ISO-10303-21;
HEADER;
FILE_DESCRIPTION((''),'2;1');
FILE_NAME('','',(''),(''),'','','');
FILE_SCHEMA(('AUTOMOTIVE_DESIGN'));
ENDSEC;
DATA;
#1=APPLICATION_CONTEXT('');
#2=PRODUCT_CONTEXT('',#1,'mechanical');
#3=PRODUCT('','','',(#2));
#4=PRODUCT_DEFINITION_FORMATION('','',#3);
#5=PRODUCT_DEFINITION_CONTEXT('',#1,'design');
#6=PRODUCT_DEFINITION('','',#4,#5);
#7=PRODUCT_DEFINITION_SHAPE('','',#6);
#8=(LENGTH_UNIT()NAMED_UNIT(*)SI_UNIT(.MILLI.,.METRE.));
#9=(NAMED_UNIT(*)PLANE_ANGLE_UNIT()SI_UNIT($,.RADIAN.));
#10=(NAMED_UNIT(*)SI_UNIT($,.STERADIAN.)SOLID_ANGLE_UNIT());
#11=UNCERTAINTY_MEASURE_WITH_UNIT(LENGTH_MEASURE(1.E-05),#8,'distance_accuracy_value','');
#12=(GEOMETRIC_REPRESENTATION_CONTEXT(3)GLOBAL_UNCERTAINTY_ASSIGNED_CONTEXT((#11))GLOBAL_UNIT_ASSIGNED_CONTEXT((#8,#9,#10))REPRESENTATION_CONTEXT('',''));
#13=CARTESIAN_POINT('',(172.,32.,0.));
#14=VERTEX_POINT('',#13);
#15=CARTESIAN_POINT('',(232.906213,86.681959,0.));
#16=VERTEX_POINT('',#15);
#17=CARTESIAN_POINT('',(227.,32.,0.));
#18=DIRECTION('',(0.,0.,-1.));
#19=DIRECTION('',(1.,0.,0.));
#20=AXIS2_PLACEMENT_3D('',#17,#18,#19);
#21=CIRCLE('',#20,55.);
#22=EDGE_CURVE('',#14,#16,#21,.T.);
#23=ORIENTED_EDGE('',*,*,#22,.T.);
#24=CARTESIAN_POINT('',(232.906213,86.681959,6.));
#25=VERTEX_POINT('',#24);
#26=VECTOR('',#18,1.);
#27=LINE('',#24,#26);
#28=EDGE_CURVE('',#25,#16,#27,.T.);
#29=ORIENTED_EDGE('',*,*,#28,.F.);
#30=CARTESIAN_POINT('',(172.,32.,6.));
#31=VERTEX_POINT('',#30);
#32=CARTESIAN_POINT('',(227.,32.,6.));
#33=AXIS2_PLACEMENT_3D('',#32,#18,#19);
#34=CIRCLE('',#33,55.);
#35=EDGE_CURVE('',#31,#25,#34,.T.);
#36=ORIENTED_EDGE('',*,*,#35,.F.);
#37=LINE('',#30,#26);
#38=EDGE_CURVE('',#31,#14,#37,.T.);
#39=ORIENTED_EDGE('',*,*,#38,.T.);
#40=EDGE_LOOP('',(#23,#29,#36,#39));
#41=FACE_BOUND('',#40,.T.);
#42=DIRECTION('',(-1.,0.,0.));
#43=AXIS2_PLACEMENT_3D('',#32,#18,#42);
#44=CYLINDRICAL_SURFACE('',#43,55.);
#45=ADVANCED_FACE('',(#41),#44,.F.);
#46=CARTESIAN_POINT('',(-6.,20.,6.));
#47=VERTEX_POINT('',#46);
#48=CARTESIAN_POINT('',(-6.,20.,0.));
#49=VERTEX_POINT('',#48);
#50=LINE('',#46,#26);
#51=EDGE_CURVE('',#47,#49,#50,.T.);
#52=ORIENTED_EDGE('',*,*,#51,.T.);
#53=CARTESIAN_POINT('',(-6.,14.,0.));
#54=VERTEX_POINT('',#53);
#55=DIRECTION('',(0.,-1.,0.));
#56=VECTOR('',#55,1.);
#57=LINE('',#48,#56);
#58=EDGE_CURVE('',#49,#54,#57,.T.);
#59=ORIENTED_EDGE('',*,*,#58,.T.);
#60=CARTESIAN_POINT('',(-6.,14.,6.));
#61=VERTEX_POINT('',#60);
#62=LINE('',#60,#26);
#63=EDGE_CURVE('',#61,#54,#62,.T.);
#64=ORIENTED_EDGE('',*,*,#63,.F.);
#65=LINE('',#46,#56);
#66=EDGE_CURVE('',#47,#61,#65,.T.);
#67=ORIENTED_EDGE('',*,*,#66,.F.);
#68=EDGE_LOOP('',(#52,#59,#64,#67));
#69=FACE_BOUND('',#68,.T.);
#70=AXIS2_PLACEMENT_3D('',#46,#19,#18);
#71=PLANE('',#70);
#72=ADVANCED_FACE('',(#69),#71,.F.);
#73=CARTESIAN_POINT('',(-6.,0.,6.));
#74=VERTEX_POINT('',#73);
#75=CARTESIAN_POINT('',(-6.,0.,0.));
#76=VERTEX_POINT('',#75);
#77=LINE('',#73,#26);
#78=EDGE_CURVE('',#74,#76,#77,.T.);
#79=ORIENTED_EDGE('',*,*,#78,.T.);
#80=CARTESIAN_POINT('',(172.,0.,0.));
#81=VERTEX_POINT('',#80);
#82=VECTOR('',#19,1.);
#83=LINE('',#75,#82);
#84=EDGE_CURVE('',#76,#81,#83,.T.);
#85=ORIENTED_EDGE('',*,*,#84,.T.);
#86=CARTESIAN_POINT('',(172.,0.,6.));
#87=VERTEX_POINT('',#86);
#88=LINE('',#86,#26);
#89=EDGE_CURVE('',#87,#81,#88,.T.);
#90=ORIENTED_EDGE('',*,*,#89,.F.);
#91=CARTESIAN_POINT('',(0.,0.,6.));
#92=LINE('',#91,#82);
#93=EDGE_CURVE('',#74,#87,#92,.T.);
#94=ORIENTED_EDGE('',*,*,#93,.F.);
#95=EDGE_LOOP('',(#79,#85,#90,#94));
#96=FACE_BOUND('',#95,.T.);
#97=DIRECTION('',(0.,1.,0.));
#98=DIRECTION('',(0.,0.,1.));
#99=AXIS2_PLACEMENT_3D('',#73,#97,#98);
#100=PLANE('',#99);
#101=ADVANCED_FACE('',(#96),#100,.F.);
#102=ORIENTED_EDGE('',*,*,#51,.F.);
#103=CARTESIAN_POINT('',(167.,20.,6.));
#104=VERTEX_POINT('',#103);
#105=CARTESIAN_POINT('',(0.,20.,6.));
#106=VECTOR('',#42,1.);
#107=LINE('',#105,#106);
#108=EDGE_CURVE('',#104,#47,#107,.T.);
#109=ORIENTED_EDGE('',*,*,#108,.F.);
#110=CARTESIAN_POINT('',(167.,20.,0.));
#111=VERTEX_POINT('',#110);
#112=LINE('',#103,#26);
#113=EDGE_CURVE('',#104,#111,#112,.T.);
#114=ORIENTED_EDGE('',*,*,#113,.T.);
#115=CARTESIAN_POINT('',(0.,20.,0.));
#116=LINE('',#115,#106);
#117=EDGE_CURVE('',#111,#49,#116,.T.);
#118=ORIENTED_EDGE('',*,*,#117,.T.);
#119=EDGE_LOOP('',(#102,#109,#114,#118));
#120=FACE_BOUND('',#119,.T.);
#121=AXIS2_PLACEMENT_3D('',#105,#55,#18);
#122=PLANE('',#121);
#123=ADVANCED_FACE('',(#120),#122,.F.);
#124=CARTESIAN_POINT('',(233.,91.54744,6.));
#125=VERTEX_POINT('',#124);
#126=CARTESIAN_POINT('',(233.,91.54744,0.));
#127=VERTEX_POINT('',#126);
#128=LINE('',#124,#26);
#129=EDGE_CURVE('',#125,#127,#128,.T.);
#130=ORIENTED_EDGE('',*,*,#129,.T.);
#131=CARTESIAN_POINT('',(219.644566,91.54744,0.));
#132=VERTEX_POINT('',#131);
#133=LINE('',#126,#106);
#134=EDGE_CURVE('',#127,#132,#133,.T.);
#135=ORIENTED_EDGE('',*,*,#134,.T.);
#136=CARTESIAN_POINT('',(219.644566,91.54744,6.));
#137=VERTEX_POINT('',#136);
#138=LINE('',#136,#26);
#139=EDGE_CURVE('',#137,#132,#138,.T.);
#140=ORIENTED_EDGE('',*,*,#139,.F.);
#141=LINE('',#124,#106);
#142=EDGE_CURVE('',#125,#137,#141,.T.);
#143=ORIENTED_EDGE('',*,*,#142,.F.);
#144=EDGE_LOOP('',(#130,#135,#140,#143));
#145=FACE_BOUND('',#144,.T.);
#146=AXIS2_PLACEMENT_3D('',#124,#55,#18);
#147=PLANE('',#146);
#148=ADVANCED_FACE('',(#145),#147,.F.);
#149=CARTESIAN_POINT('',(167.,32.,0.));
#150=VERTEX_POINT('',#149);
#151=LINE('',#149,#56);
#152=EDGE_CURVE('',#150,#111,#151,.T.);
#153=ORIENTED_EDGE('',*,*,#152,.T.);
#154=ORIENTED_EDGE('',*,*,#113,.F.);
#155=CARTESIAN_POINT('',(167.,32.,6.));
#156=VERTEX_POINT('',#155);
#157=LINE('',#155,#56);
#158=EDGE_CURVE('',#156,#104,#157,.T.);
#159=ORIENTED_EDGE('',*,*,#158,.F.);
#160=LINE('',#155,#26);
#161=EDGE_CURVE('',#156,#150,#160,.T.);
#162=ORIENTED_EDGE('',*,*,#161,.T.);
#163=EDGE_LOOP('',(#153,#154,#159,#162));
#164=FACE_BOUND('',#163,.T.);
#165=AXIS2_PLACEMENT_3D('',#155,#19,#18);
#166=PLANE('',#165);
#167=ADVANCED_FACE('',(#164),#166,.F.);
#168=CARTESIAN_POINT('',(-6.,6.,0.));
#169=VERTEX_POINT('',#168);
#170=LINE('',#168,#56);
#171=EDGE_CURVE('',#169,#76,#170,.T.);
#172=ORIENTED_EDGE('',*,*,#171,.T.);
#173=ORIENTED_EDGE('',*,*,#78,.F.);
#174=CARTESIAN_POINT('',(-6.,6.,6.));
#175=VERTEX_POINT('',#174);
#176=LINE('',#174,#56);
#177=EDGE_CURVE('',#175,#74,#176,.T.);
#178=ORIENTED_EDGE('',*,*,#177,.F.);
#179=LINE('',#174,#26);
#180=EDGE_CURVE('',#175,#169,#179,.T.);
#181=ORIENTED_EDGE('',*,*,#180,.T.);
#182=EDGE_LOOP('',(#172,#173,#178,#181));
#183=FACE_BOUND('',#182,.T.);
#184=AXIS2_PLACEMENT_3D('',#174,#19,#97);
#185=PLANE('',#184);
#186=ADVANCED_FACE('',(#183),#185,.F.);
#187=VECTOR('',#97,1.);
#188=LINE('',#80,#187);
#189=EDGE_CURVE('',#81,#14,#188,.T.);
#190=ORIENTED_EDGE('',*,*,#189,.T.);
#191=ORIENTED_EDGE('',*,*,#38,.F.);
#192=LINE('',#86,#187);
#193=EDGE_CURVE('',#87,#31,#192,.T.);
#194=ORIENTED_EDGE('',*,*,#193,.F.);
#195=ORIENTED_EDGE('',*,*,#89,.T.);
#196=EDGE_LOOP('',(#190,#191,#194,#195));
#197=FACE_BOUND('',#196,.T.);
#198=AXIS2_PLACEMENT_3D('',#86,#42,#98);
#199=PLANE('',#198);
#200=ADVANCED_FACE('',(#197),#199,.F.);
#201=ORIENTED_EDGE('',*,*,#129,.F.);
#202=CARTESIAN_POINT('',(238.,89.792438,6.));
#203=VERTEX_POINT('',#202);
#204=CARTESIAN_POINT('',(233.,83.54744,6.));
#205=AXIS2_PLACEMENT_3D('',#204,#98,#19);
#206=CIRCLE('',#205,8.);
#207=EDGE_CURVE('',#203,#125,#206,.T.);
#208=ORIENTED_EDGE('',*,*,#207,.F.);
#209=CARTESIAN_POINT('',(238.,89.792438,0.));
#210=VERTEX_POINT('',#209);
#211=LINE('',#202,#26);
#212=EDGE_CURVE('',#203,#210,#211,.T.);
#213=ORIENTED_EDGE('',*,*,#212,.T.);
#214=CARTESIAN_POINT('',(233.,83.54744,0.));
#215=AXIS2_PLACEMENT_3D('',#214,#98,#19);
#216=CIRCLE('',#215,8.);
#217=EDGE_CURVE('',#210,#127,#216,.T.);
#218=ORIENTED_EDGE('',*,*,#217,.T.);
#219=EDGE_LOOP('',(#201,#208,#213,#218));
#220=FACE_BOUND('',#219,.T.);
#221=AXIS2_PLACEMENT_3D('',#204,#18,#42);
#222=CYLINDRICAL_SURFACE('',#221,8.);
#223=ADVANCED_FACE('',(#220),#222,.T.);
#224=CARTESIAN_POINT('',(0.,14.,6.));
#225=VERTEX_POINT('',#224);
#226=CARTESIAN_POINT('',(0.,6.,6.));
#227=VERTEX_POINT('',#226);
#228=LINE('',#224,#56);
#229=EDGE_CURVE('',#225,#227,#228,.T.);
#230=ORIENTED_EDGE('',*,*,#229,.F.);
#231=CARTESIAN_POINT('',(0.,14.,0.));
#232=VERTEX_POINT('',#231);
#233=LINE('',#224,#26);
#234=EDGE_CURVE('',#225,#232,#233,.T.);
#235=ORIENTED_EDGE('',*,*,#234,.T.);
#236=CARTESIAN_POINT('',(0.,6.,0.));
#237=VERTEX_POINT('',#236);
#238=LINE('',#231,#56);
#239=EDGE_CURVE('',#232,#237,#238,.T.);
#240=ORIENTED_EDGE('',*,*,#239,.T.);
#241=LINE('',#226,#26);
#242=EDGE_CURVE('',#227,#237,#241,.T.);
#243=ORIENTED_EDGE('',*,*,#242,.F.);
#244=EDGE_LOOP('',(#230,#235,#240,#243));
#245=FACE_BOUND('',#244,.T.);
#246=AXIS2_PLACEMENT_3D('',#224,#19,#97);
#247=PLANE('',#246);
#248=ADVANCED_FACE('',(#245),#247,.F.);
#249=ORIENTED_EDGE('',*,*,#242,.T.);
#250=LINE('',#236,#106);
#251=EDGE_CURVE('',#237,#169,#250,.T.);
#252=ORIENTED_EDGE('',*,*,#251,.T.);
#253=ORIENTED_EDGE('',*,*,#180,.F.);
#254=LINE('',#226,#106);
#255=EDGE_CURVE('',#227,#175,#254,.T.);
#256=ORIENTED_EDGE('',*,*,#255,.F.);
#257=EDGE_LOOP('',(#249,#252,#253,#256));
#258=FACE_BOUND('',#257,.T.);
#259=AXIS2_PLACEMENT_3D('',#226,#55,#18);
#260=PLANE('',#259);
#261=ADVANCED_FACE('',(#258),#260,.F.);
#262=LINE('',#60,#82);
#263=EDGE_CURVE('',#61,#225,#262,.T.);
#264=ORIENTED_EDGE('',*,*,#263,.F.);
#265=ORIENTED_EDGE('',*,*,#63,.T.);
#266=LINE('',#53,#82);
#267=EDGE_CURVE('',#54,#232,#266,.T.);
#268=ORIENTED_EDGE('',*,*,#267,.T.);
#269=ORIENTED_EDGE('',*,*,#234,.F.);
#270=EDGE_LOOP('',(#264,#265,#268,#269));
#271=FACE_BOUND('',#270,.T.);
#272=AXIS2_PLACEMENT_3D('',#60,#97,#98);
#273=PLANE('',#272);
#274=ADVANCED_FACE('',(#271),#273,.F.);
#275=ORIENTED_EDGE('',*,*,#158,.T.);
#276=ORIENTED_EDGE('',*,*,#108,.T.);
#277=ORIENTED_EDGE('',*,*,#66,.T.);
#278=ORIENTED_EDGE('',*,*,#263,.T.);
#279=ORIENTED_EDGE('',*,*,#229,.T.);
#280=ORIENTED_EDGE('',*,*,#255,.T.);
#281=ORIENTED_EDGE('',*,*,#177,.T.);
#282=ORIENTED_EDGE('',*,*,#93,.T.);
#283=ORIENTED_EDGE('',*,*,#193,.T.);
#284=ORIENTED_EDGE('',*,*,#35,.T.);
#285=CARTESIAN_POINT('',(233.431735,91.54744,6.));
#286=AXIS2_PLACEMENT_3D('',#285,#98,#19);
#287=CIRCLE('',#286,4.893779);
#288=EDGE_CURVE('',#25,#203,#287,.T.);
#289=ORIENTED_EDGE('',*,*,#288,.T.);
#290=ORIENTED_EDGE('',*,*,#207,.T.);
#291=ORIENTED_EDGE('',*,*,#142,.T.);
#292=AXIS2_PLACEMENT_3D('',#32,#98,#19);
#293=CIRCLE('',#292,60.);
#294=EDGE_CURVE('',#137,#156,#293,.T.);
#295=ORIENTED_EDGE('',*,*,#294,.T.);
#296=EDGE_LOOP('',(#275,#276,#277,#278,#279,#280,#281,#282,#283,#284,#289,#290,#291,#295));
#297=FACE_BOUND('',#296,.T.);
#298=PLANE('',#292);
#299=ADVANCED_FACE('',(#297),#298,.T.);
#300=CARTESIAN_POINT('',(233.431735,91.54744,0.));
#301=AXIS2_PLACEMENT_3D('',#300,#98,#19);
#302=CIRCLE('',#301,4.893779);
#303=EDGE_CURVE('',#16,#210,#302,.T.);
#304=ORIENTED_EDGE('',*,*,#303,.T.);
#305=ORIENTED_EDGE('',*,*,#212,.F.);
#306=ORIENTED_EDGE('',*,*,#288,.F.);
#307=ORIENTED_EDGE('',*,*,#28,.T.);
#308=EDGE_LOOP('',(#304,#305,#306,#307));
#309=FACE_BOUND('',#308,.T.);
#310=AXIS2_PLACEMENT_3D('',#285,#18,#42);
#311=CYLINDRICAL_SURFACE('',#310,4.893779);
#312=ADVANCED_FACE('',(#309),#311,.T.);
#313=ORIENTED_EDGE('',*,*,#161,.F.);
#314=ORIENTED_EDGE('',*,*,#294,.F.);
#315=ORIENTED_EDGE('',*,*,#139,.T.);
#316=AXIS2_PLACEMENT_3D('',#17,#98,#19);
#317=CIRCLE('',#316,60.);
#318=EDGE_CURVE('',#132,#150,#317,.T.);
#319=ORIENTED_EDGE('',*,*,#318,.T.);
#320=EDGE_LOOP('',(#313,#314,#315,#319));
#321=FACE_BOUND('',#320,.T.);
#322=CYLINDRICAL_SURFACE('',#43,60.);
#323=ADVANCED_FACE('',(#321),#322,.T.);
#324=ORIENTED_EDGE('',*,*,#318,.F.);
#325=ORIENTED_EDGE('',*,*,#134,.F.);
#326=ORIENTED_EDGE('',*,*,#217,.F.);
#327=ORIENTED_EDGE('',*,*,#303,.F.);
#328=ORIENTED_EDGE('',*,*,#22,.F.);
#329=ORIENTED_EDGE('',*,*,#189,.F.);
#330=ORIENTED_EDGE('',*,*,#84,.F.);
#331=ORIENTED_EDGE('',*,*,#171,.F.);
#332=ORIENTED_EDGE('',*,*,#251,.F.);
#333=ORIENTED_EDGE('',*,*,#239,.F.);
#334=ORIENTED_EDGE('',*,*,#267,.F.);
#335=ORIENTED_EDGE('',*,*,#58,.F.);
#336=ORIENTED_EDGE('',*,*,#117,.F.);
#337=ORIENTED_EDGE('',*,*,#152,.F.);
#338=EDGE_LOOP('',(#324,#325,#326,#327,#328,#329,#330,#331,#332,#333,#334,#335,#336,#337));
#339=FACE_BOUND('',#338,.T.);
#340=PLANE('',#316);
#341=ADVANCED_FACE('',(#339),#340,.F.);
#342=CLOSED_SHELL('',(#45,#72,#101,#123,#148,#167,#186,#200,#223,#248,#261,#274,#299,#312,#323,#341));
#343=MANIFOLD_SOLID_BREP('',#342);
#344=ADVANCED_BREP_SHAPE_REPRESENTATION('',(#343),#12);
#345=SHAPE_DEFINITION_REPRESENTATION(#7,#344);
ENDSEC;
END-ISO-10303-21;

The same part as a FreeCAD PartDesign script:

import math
import FreeCAD as App
import Part
import Sketcher

V = App.Vector

doc = App.newDocument("Part")
body = doc.addObject("PartDesign::Body", "Body")

# Sketch on XY plane
sketch1 = body.newObject("Sketcher::SketchObject", "Sketch")
sketch1.AttachmentSupport = (doc.getObject("XY_Plane"), [""])
sketch1.MapMode = "FlatFace"
sketch1.addGeometry([
    Part.LineSegment(V(167, 32, 0), V(167, 20, 0)),  # 0
    Part.LineSegment(V(167, 20, 0), V(-6, 20, 0)),  # 1
    Part.LineSegment(V(-6, 20, 0), V(-6, 14, 0)),  # 2
    Part.LineSegment(V(-6, 14, 0), V(0, 14, 0)),  # 3
    Part.LineSegment(V(0, 14, 0), V(0, 6, 0)),  # 4
    Part.LineSegment(V(0, 6, 0), V(-6, 6, 0)),  # 5
    Part.LineSegment(V(-6, 6, 0), V(-6, 0, 0)),  # 6
    Part.LineSegment(V(-6, 0, 0), V(172, 0, 0)),  # 7
    Part.LineSegment(V(172, 0, 0), V(172, 32, 0)),  # 8
    Part.ArcOfCircle(Part.Circle(V(227, 32, 0), V(0, 0, 1), 55), math.radians(83.835366), math.radians(180)),  # 9
    Part.ArcOfCircle(Part.Circle(V(233.431735, 91.54744, 0), V(0, 0, 1), 4.893779), math.radians(-96.164634), math.radians(-21.015405)),  # 10
    Part.ArcOfCircle(Part.Circle(V(233, 83.54744, 0), V(0, 0, 1), 8), math.radians(51.317813), math.radians(90)),  # 11
    Part.LineSegment(V(233, 91.54744, 0), V(219.644566, 91.54744, 0)),  # 12
    Part.ArcOfCircle(Part.Circle(V(227, 32, 0), V(0, 0, 1), 60), math.radians(97.041635), math.radians(180)),  # 13
], False)
sketch1.addConstraint([
    Sketcher.Constraint("Coincident", 0, 2, 1, 1),
    Sketcher.Constraint("Coincident", 1, 2, 2, 1),
    Sketcher.Constraint("Coincident", 2, 2, 3, 1),
    Sketcher.Constraint("Coincident", 3, 2, 4, 1),
    Sketcher.Constraint("Coincident", 4, 2, 5, 1),
    Sketcher.Constraint("Coincident", 5, 2, 6, 1),
    Sketcher.Constraint("Coincident", 6, 2, 7, 1),
    Sketcher.Constraint("Coincident", 7, 2, 8, 1),
    Sketcher.Constraint("Tangent", 8, 2, 9, 2),
    Sketcher.Constraint("Tangent", 9, 1, 10, 1),
    Sketcher.Constraint("Coincident", 10, 2, 11, 1),
    Sketcher.Constraint("Tangent", 11, 2, 12, 1),
    Sketcher.Constraint("Coincident", 12, 2, 13, 1),
    Sketcher.Constraint("Tangent", 13, 2, 0, 1),
    Sketcher.Constraint("Vertical", 0),
    Sketcher.Constraint("Horizontal", 1),
    Sketcher.Constraint("Vertical", 2),
    Sketcher.Constraint("Horizontal", 3),
    Sketcher.Constraint("Vertical", 4),
    Sketcher.Constraint("Horizontal", 5),
    Sketcher.Constraint("Vertical", 6),
    Sketcher.Constraint("Horizontal", 7),
    Sketcher.Constraint("Vertical", 8),
    Sketcher.Constraint("Horizontal", 12),
    Sketcher.Constraint("Coincident", 13, 3, 9, 3),
    Sketcher.Constraint("PointOnObject", 3, 2, -2),
    Sketcher.Constraint("PointOnObject", 6, 2, -1),
    Sketcher.Constraint("Horizontal", 10, 3, 11, 2),
    Sketcher.Constraint("Vertical", 2, 2, 5, 2),
    Sketcher.Constraint("Equal", 5, 2),
    Sketcher.Constraint("Equal", 2, 6),
    Sketcher.Constraint("Radius", 9, 55.0),
    Sketcher.Constraint("Radius", 11, 8.0),
    Sketcher.Constraint("Radius", 13, 60.0),
    Sketcher.Constraint("DistanceX", 1, 2, 1, 1, 173.0),
    Sketcher.Constraint("DistanceX", 3, 1, 3, 2, 6.0),
    Sketcher.Constraint("DistanceY", 0, 2, 0, 1, 12.0),
    Sketcher.Constraint("DistanceY", 4, 2, 4, 1, 8.0),
    Sketcher.Constraint("DistanceX", -1, 1, 11, 3, 233.0),
    Sketcher.Constraint("DistanceX", -1, 1, 10, 2, 238.0),
    Sketcher.Constraint("Radius", 10, 4.893779),
])
pad1 = body.newObject("PartDesign::Pad", "Pad")
pad1.Profile = sketch1
pad1.Length = 6

doc.recompute()
